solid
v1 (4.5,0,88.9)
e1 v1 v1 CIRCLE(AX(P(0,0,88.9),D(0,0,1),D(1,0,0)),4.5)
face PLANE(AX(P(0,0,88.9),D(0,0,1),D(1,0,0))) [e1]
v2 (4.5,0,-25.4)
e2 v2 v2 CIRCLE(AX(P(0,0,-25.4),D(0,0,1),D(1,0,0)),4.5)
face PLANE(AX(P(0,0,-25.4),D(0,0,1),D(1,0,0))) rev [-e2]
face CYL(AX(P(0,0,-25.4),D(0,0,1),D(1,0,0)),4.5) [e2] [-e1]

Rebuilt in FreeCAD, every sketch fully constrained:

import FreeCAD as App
import Part
import Sketcher
from FreeCAD import Vector

doc = App.newDocument("Part")
body = doc.addObject("PartDesign::Body", "Body")

# Sketch on XY plane
sketch1 = body.newObject("Sketcher::SketchObject", "Sketch")
sketch1.AttachmentSupport = (doc.getObject("XY_Plane"), [""])
sketch1.MapMode = "FlatFace"
sketch1.AttachmentOffset = App.Placement(Vector(0, 0, 88.9), App.Rotation())
sketch1.addGeometry(Part.Circle(Vector(0, 0, 0), Vector(0, 0, 1), 4.5), False)
sketch1.addConstraint(Sketcher.Constraint("Coincident", 0, 3, -1, 1))
sketch1.addConstraint(Sketcher.Constraint("Diameter", 0, 9.0))
pad1 = body.newObject("PartDesign::Pad", "Pad")
pad1.Profile = sketch1
pad1.Length = 114.3
pad1.Reversed = True

doc.recompute()
